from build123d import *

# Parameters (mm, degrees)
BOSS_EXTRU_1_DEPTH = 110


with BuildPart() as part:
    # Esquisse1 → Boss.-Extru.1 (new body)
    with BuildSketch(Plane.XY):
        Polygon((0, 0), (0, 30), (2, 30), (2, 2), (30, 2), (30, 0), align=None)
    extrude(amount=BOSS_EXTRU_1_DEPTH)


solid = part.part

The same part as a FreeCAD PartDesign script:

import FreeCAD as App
import Part
import Sketcher

V = App.Vector
Q = App.Units.Quantity


def add_polygon(sketch, points):
    """Adds a closed chain of lines whose ends are joined by coincident constraints."""
    first, n = sketch.GeometryCount, len(points)
    for a, b in zip(points, points[1:] + points[:1]):
        sketch.addGeometry(Part.LineSegment(App.Vector(*a, 0), App.Vector(*b, 0)), False)
    for i in range(n):
        sketch.addConstraint(Sketcher.Constraint("Coincident", first + i, 2, first + (i + 1) % n, 1))

doc = App.newDocument("Part")
params = doc.addObject("Spreadsheet::Sheet", "Params")
for row, (alias, value) in enumerate([
    ("sketch1_width", "30 mm"),
    ("sketch1_width2", "28 mm"),
    ("pad1_length", "110 mm"),
], start=1):
    params.set(f"A{row}", alias)
    params.set(f"B{row}", "=" + value)
    params.setAlias(f"B{row}", alias)

body = doc.addObject("PartDesign::Body", "Body")

sketch1 = doc.addObject("Sketcher::SketchObject", "Sketch")
body.addObject(sketch1)
sketch1.AttachmentSupport = (doc.XY_Plane, [""])
sketch1.MapMode = "FlatFace"
add_polygon(sketch1, [(0, 30), (0, 0), (30, 0), (30, 2), (2, 2), (2, 30)])
sketch1.addConstraint(Sketcher.Constraint("Vertical", 0))
sketch1.addConstraint(Sketcher.Constraint("Horizontal", 1))
sketch1.addConstraint(Sketcher.Constraint("Vertical", 2))
sketch1.addConstraint(Sketcher.Constraint("Horizontal", 3))
sketch1.addConstraint(Sketcher.Constraint("Vertical", 4))
sketch1.addConstraint(Sketcher.Constraint("Horizontal", 5))
sketch1.addConstraint(Sketcher.Constraint("Coincident", 0, 2, -1, 1))
sketch1.addConstraint(Sketcher.Constraint("Equal", 1, 0))
sketch1.addConstraint(Sketcher.Constraint("Equal", 5, 2))
sketch1.addConstraint(Sketcher.Constraint("DistanceX", 1, 1, 1, 2, Q("30 mm")))
sketch1.addConstraint(Sketcher.Constraint("DistanceX", 3, 2, 3, 1, Q("28 mm")))
sketch1.setExpression("Constraints[15]", "Params.sketch1_width")
sketch1.setExpression("Constraints[16]", "Params.sketch1_width2")
pad1 = doc.addObject("PartDesign::Pad", "Pad")
body.addObject(pad1)
pad1.Profile = sketch1
pad1.setExpression("Length", "Params.pad1_length")

doc.recompute()
